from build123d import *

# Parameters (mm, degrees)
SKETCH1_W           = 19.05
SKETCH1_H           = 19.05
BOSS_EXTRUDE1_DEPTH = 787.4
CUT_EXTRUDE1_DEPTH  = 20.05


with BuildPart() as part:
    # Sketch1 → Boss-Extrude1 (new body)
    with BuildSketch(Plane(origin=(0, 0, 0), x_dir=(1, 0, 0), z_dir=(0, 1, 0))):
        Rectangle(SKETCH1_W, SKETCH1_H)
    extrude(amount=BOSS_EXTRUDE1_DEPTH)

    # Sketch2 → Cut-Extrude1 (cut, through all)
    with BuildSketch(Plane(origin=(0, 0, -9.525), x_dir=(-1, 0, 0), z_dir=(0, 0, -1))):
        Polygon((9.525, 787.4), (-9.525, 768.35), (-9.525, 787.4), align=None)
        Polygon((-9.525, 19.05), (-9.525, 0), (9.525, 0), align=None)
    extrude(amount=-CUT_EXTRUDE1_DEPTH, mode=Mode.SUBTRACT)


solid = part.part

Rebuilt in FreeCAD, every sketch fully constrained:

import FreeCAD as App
import Part
import Sketcher
from FreeCAD import Vector
Q = App.Units.Quantity

doc = App.newDocument("Part")
body = doc.addObject("PartDesign::Body", "Body")

# Sketch on XZ plane
sketch1 = body.newObject("Sketcher::SketchObject", "Sketch")
sketch1.AttachmentSupport = (doc.getObject("XZ_Plane"), [""])
sketch1.MapMode = "FlatFace"
sketch1.addGeometry([
    Part.LineSegment(Vector(-10, -10, 0), Vector(-10, 10, 0)),
    Part.LineSegment(Vector(-10, 10, 0), Vector(10, 10, 0)),
    Part.LineSegment(Vector(10, 10, 0), Vector(10, -10, 0)),
    Part.LineSegment(Vector(10, -10, 0), Vector(-10, -10, 0)),
], False)
sketch1.addConstraint([
    Sketcher.Constraint("Coincident", 0, 2, 1, 1),
    Sketcher.Constraint("Coincident", 1, 2, 2, 1),
    Sketcher.Constraint("Coincident", 2, 2, 3, 1),
    Sketcher.Constraint("Coincident", 3, 2, 0, 1),
    Sketcher.Constraint("Vertical", 0),
    Sketcher.Constraint("Horizontal", 1),
    Sketcher.Constraint("Vertical", 2),
    Sketcher.Constraint("Horizontal", 3),
    Sketcher.Constraint("Symmetric", 0, 2, 2, 2, -1, 1),
    Sketcher.Constraint("Equal", 3, 0),
    Sketcher.Constraint("DistanceX", 1, 1, 1, 2, Q("0.75 in")),
])
pad1 = body.newObject("PartDesign::Pad", "Pad")
pad1.Profile = sketch1
pad1.Length = Q("31 in")
pad1.Reversed = True

# Sketch on XY plane
sketch2 = body.newObject("Sketcher::SketchObject", "Sketch001")
sketch2.AttachmentSupport = (doc.getObject("XY_Plane"), [""])
sketch2.MapMode = "FlatFace"
sketch2.AttachmentOffset = App.Placement(Vector(0, 0, -0.375 * 25.4), App.Rotation())
sketch2.addGeometry([
    Part.LineSegment(Vector(10, 768, 0), Vector(-10, 787, 0)),  # 0
    Part.LineSegment(Vector(-10, 787, 0), Vector(10, 787, 0)),  # 1
    Part.LineSegment(Vector(10, 787, 0), Vector(10, 768, 0)),  # 2
    Part.LineSegment(Vector(10, 19, 0), Vector(10, 0, 0)),  # 3
    Part.LineSegment(Vector(10, 0, 0), Vector(-10, 0, 0)),  # 4
    Part.LineSegment(Vector(-10, 0, 0), Vector(10, 19, 0)),  # 5
], False)
sketch2.addConstraint([
    Sketcher.Constraint("Coincident", 0, 2, 1, 1),
    Sketcher.Constraint("Coincident", 1, 2, 2, 1),
    Sketcher.Constraint("Coincident", 2, 2, 0, 1),
    Sketcher.Constraint("Coincident", 3, 2, 4, 1),
    Sketcher.Constraint("Coincident", 4, 2, 5, 1),
    Sketcher.Constraint("Coincident", 5, 2, 3, 1),
    Sketcher.Constraint("Horizontal", 1),
    Sketcher.Constraint("Vertical", 2),
    Sketcher.Constraint("Vertical", 3),
    Sketcher.Constraint("Horizontal", 4),
    Sketcher.Constraint("Symmetric", 3, 2, 4, 2, -1, 1),
    Sketcher.Constraint("Perpendicular", 0, 5),
    Sketcher.Constraint("Vertical", 2, 2, 3, 2),
    Sketcher.Constraint("Vertical", 0, 2, 4, 2),
    Sketcher.Constraint("Equal", 4, 2),
    Sketcher.Constraint("DistanceY", -1, 1, 0, 2, Q("31 in")),
    Sketcher.Constraint("DistanceX", 1, 1, 1, 2, Q("0.75 in")),
])
pocket1 = body.newObject("PartDesign::Pocket", "Pocket")
pocket1.Profile = sketch2
pocket1.Type = "ThroughAll"
pocket1.Reversed = True

doc.recompute()
